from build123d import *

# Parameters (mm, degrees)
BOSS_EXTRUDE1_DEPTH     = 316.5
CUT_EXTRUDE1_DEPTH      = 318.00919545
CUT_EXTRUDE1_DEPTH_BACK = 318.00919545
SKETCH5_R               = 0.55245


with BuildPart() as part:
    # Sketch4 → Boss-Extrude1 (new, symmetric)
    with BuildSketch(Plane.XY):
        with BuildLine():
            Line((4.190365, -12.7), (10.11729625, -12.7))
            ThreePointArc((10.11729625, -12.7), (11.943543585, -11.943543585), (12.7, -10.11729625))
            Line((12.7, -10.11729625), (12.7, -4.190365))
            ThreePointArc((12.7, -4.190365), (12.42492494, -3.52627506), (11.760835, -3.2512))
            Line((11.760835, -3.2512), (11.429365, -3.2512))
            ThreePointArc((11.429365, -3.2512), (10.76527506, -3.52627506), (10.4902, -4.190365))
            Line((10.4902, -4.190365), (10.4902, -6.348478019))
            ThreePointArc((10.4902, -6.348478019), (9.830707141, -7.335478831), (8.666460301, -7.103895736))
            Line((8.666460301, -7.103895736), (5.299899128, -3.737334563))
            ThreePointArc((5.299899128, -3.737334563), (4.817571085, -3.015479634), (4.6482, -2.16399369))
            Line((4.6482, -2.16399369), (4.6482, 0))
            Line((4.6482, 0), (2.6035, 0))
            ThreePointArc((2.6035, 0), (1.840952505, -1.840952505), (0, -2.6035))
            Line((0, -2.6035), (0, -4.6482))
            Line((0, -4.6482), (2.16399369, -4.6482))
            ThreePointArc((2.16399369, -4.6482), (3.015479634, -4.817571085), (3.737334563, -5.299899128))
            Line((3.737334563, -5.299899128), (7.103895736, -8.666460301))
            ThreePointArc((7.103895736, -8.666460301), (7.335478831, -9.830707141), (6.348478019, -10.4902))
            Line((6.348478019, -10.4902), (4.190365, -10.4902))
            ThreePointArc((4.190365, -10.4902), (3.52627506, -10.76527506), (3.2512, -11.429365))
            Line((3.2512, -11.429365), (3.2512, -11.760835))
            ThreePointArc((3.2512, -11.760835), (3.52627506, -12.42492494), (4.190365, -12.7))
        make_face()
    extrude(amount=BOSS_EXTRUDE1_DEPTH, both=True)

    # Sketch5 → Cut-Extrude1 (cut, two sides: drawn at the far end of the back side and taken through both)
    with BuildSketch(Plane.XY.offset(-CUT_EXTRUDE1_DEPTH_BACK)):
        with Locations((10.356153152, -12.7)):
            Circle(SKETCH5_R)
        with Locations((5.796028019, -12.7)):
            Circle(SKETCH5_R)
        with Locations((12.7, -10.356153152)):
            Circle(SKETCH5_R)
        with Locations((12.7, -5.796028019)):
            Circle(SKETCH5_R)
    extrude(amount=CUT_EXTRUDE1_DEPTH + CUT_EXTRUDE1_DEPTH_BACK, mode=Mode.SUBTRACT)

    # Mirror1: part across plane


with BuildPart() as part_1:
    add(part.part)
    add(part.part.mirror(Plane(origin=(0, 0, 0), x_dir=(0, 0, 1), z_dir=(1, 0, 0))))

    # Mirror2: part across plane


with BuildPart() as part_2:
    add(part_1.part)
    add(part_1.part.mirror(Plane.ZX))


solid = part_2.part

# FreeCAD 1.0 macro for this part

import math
import FreeCAD as App
import Part
import Sketcher

V = App.Vector
Q = App.Units.Quantity

doc = App.newDocument("Part")
body = doc.addObject("PartDesign::Body", "Body")

# Sketch on XY plane
sketch1 = body.newObject("Sketcher::SketchObject", "Sketch")
sketch1.AttachmentSupport = (doc.getObject("XY_Plane"), [""])
sketch1.MapMode = "FlatFace"
sketch1.addGeometry([
    Part.LineSegment(V(4.19, -12.7, 0), V(10.12, -12.7, 0)),  # 0
    Part.ArcOfCircle(Part.Circle(V(10.12, -10.12, 0), V(0, 0, 1), 2.58), math.radians(-90), math.radians(0)),  # 1
    Part.LineSegment(V(12.7, -10.12, 0), V(12.7, -4.19, 0)),  # 2
    Part.ArcOfCircle(Part.Circle(V(11.76, -4.19, 0), V(0, 0, 1), 0.94), math.radians(0), math.radians(90)),  # 3
    Part.LineSegment(V(11.76, -3.25, 0), V(11.43, -3.25, 0)),  # 4
    Part.ArcOfCircle(Part.Circle(V(11.43, -4.19, 0), V(0, 0, 1), 0.94), math.radians(90), math.radians(180)),  # 5
    Part.LineSegment(V(10.49, -4.19, 0), V(10.49, -6.35, 0)),  # 6
    Part.ArcOfCircle(Part.Circle(V(9.42, -6.35, 0), V(0, 0, 1), 1.07), math.radians(-135), math.radians(0)),  # 7
    Part.LineSegment(V(8.67, -7.1, 0), V(5.3, -3.74, 0)),  # 8
    Part.ArcOfCircle(Part.Circle(V(6.87, -2.16, 0), V(0, 0, 1), 2.23), math.radians(-180), math.radians(-135)),  # 9
    Part.LineSegment(V(4.65, -2.16, 0), V(4.65, 0, 0)),  # 10
    Part.LineSegment(V(4.65, 0, 0), V(2.6, 0, 0)),  # 11
    Part.ArcOfCircle(Part.Circle(V(0, 0, 0), V(0, 0, 1), 2.6), math.radians(-90), math.radians(0)),  # 12
    Part.LineSegment(V(0, -2.6, 0), V(0, -4.65, 0)),  # 13
    Part.LineSegment(V(0, -4.65, 0), V(2.16, -4.65, 0)),  # 14
    Part.ArcOfCircle(Part.Circle(V(2.16, -6.87, 0), V(0, 0, 1), 2.23), math.radians(45), math.radians(90)),  # 15
    Part.LineSegment(V(3.74, -5.3, 0), V(7.1, -8.67, 0)),  # 16
    Part.ArcOfCircle(Part.Circle(V(6.35, -9.42, 0), V(0, 0, 1), 1.07), math.radians(-90), math.radians(45)),  # 17
    Part.LineSegment(V(6.35, -10.49, 0), V(4.19, -10.49, 0)),  # 18
    Part.ArcOfCircle(Part.Circle(V(4.19, -11.43, 0), V(0, 0, 1), 0.94), math.radians(90), math.radians(180)),  # 19
    Part.LineSegment(V(3.25, -11.43, 0), V(3.25, -11.76, 0)),  # 20
    Part.ArcOfCircle(Part.Circle(V(4.19, -11.76, 0), V(0, 0, 1), 0.94), math.radians(-180), math.radians(-90)),  # 21
], False)
sketch1.addConstraint([
    Sketcher.Constraint("Tangent", 0, 2, 1, 1),
    Sketcher.Constraint("Tangent", 1, 2, 2, 1),
    Sketcher.Constraint("Tangent", 2, 2, 3, 1),
    Sketcher.Constraint("Tangent", 3, 2, 4, 1),
    Sketcher.Constraint("Tangent", 4, 2, 5, 1),
    Sketcher.Constraint("Tangent", 5, 2, 6, 1),
    Sketcher.Constraint("Tangent", 6, 2, 7, 2),
    Sketcher.Constraint("Tangent", 7, 1, 8, 1),
    Sketcher.Constraint("Tangent", 8, 2, 9, 2),
    Sketcher.Constraint("Tangent", 9, 1, 10, 1),
    Sketcher.Constraint("Coincident", 10, 2, 11, 1),
    Sketcher.Constraint("Coincident", 11, 2, 12, 2),
    Sketcher.Constraint("Coincident", 12, 1, 13, 1),
    Sketcher.Constraint("Coincident", 13, 2, 14, 1),
    Sketcher.Constraint("Tangent", 14, 2, 15, 2),
    Sketcher.Constraint("Tangent", 15, 1, 16, 1),
    Sketcher.Constraint("Tangent", 16, 2, 17, 2),
    Sketcher.Constraint("Tangent", 17, 1, 18, 1),
    Sketcher.Constraint("Tangent", 18, 2, 19, 1),
    Sketcher.Constraint("Tangent", 19, 2, 20, 1),
    Sketcher.Constraint("Tangent", 20, 2, 21, 1),
    Sketcher.Constraint("Tangent", 21, 2, 0, 1),
    Sketcher.Constraint("Horizontal", 0),
    Sketcher.Constraint("Vertical", 2),
    Sketcher.Constraint("Horizontal", 4),
    Sketcher.Constraint("Vertical", 6),
    Sketcher.Constraint("Vertical", 10),
    Sketcher.Constraint("Horizontal", 11),
    Sketcher.Constraint("Vertical", 13),
    Sketcher.Constraint("Horizontal", 14),
    Sketcher.Constraint("Horizontal", 18),
    Sketcher.Constraint("Vertical", 20),
    Sketcher.Constraint("Coincident", 12, 3, -1, 1),
    Sketcher.Constraint("Equal", 3, 5),
    Sketcher.Constraint("Equal", 9, 15),
    Sketcher.Constraint("Equal", 7, 17),
    Sketcher.Constraint("Equal", 5, 19),
    Sketcher.Constraint("Equal", 19, 21),
    Sketcher.Constraint("PointOnObject", 10, 2, -1),
    Sketcher.Constraint("PointOnObject", 12, 1, -2),
    Sketcher.Constraint("Parallel", 8, 16),
    Sketcher.Constraint("Equal", 0, 2),
    Sketcher.Constraint("Equal", 18, 6),
    Sketcher.Constraint("Equal", 14, 10),
    Sketcher.Constraint("Equal", 11, 13),
    Sketcher.Constraint("Equal", 4, 20),
    Sketcher.Constraint("Equal", 8, 16),
    Sketcher.Constraint("DistanceY", 0, 2, -1, 1, Q("12.7 mm")),
    Sketcher.Constraint("Radius", 12, Q("2.6035 mm")),
    Sketcher.Constraint("Radius", 7, Q("1.068322 mm")),
    Sketcher.Constraint("Radius", 9, Q("2.22504 mm")),
    Sketcher.Constraint("DistanceX", 11, 2, 11, 1, Q("2.0447 mm")),
    Sketcher.Constraint("Radius", 1, Q("2.582704 mm")),
    Sketcher.Constraint("Radius", 3, Q("0.939165 mm")),
    Sketcher.Constraint("DistanceX", 9, 1, 5, 2, Q("5.842 mm")),
    Sketcher.Constraint("DistanceX", 0, 1, 0, 2, Q("5.926931 mm")),
    Sketcher.Constraint("DistanceX", 17, 3, 7, 3, Q("3.0734 mm")),
])
pad1 = body.newObject("PartDesign::Pad", "Pad")
pad1.Profile = sketch1
pad1.Length = 633
pad1.Midplane = True

# Sketch on XY plane
sketch2 = body.newObject("Sketcher::SketchObject", "Sketch001")
sketch2.AttachmentSupport = (doc.getObject("XY_Plane"), [""])
sketch2.MapMode = "FlatFace"
sketch2.addGeometry([
    Part.Circle(V(10.4, -12.7, 0), V(0, 0, 1), 0.6),
    Part.Circle(V(5.8, -12.7, 0), V(0, 0, 1), 0.6),
    Part.Circle(V(12.7, -10.4, 0), V(0, 0, 1), 0.6),
    Part.Circle(V(12.7, -5.8, 0), V(0, 0, 1), 0.6),
], False)
sketch2.addConstraint([
    Sketcher.Constraint("Equal", 0, 1),
    Sketcher.Constraint("Equal", 1, 2),
    Sketcher.Constraint("Equal", 2, 3),
    Sketcher.Constraint("Horizontal", 0, 3, 1, 3),
    Sketcher.Constraint("Vertical", 2, 3, 3, 3),
    Sketcher.Constraint("Diameter", 0, Q("1.1049 mm")),
    Sketcher.Constraint("DistanceY", 0, 3, -1, 1, Q("12.7 mm")),
    Sketcher.Constraint("DistanceX", -1, 1, 2, 3, Q("12.7 mm")),
    Sketcher.Constraint("DistanceX", -1, 1, 1, 3, Q("5.796028 mm")),
    Sketcher.Constraint("DistanceY", 3, 3, -1, 1, Q("5.796028 mm")),
    Sketcher.Constraint("DistanceX", -1, 1, 0, 3, Q("10.356153 mm")),
    Sketcher.Constraint("DistanceY", 2, 3, -1, 1, Q("10.356153 mm")),
])
pocket1 = body.newObject("PartDesign::Pocket", "Pocket")
pocket1.Profile = sketch2
pocket1.Type = "ThroughAll"
pocket1.Midplane = True
body2 = doc.addObject("PartDesign::Body", "Body001")
doc.recompute()

body2.BaseFeature = body
doc.recompute()

mirroring = doc.addObject("Part::Mirroring", "Mirroring")
mirroring.Source = body
mirroring.Base = V(0, 0, 0)
mirroring.Normal = V(1, 0, 0)
body3 = doc.addObject("PartDesign::Body", "Body002")
body3.BaseFeature = mirroring
boolean = body2.newObject("PartDesign::Boolean", "Boolean")
boolean.Type = "Fuse"
boolean.addObjects([body3])
doc.recompute()
body4 = doc.addObject("PartDesign::Body", "Body003")
doc.recompute()

body4.BaseFeature = body2
doc.recompute()

mirroring2 = doc.addObject("Part::Mirroring", "Mirroring001")
mirroring2.Source = body2
mirroring2.Base = V(0, 0, 0)
mirroring2.Normal = V(0, 1, 0)
body5 = doc.addObject("PartDesign::Body", "Body004")
body5.BaseFeature = mirroring2
boolean2 = body4.newObject("PartDesign::Boolean", "Boolean001")
boolean2.Type = "Fuse"
boolean2.addObjects([body5])
doc.recompute()
mirroring.Visibility = False
mirroring2.Visibility = False

doc.recompute()
